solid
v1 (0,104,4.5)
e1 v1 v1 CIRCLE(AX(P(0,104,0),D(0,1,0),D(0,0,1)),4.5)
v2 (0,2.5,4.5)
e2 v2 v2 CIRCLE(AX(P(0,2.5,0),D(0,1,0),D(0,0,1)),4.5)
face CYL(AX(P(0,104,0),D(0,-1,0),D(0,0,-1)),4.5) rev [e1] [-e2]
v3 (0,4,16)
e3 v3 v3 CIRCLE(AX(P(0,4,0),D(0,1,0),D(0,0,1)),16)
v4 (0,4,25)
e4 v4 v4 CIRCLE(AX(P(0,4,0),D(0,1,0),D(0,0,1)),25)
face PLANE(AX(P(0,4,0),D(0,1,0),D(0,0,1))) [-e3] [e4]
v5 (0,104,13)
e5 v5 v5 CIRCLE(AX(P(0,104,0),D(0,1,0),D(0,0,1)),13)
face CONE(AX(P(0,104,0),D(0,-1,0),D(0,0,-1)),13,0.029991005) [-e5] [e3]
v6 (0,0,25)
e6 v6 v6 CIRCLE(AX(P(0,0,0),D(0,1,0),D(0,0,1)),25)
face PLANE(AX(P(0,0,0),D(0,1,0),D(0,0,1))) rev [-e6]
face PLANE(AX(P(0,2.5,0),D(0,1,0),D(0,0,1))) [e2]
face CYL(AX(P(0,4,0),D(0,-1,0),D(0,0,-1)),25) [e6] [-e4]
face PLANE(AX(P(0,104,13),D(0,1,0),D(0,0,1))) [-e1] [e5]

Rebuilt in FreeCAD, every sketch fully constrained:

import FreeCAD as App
import Part
import Sketcher

V = App.Vector
Q = App.Units.Quantity


def add_polygon(sketch, points):
    """Adds a closed chain of lines whose ends are joined by coincident constraints."""
    first, n = sketch.GeometryCount, len(points)
    for a, b in zip(points, points[1:] + points[:1]):
        sketch.addGeometry(Part.LineSegment(App.Vector(*a, 0), App.Vector(*b, 0)), False)
    for i in range(n):
        sketch.addConstraint(Sketcher.Constraint("Coincident", first + i, 2, first + (i + 1) % n, 1))

doc = App.newDocument("Part")
body = doc.addObject("PartDesign::Body", "Body")

sketch1 = body.newObject("Sketcher::SketchObject", "Sketch")
sketch1.AttachmentSupport = (doc.getObject("XZ_Plane"), [""])
sketch1.MapMode = "FlatFace"
sketch1.addGeometry(Part.Circle(V(0, 0, 0), V(0, 0, 1), 25), False)
sketch1.addConstraint(Sketcher.Constraint("Coincident", 0, 3, -1, 1))
sketch1.addConstraint(Sketcher.Constraint("Diameter", 0, Q("50 mm")))
pad1 = body.newObject("PartDesign::Pad", "Pad")
pad1.Profile = sketch1
pad1.Length = 4
pad1.Reversed = True

sketch2 = body.newObject("Sketcher::SketchObject", "Sketch001")
sketch2.AttachmentSupport = (doc.getObject("YZ_Plane"), [""])
sketch2.MapMode = "FlatFace"
add_polygon(sketch2, [(4, 16), (4, 0), (104, 0), (104, 13)])
sketch2.addConstraint(Sketcher.Constraint("Vertical", 0))
sketch2.addConstraint(Sketcher.Constraint("Horizontal", 1))
sketch2.addConstraint(Sketcher.Constraint("Vertical", 2))
sketch2.addConstraint(Sketcher.Constraint("PointOnObject", 0, 2, -1))
sketch2.addConstraint(Sketcher.Constraint("DistanceX", 1, 1, 1, 2, Q("100 mm")))
sketch2.addConstraint(Sketcher.Constraint("DistanceY", 0, 2, 0, 1, Q("16 mm")))
sketch2.addConstraint(Sketcher.Constraint("DistanceY", 2, 1, 2, 2, Q("13 mm")))
sketch2.addConstraint(Sketcher.Constraint("DistanceX", -1, 1, 0, 2, Q("4 mm")))
revolution = body.newObject("PartDesign::Revolution", "Revolution")
revolution.Profile = sketch2
revolution.ReferenceAxis = (sketch2, ["H_Axis"])
revolution.Angle = 360

sketch3 = body.newObject("Sketcher::SketchObject", "Sketch002")
sketch3.AttachmentSupport = (doc.getObject("XZ_Plane"), [""])
sketch3.MapMode = "FlatFace"
sketch3.AttachmentOffset = App.Placement(V(0, 0, -4), App.Rotation())
sketch3.addGeometry(Part.Circle(V(0, 0, 0), V(0, 0, 1), 4.5), False)
sketch3.addConstraint(Sketcher.Constraint("Coincident", 0, 3, -1, 1))
sketch3.addConstraint(Sketcher.Constraint("Diameter", 0, Q("9 mm")))
pocket1 = body.newObject("PartDesign::Pocket", "Pocket")
pocket1.Profile = sketch3
pocket1.Type = "TwoLengths"
pocket1.Length = 107.066017
pocket1.Length2 = 1.5

doc.recompute()
